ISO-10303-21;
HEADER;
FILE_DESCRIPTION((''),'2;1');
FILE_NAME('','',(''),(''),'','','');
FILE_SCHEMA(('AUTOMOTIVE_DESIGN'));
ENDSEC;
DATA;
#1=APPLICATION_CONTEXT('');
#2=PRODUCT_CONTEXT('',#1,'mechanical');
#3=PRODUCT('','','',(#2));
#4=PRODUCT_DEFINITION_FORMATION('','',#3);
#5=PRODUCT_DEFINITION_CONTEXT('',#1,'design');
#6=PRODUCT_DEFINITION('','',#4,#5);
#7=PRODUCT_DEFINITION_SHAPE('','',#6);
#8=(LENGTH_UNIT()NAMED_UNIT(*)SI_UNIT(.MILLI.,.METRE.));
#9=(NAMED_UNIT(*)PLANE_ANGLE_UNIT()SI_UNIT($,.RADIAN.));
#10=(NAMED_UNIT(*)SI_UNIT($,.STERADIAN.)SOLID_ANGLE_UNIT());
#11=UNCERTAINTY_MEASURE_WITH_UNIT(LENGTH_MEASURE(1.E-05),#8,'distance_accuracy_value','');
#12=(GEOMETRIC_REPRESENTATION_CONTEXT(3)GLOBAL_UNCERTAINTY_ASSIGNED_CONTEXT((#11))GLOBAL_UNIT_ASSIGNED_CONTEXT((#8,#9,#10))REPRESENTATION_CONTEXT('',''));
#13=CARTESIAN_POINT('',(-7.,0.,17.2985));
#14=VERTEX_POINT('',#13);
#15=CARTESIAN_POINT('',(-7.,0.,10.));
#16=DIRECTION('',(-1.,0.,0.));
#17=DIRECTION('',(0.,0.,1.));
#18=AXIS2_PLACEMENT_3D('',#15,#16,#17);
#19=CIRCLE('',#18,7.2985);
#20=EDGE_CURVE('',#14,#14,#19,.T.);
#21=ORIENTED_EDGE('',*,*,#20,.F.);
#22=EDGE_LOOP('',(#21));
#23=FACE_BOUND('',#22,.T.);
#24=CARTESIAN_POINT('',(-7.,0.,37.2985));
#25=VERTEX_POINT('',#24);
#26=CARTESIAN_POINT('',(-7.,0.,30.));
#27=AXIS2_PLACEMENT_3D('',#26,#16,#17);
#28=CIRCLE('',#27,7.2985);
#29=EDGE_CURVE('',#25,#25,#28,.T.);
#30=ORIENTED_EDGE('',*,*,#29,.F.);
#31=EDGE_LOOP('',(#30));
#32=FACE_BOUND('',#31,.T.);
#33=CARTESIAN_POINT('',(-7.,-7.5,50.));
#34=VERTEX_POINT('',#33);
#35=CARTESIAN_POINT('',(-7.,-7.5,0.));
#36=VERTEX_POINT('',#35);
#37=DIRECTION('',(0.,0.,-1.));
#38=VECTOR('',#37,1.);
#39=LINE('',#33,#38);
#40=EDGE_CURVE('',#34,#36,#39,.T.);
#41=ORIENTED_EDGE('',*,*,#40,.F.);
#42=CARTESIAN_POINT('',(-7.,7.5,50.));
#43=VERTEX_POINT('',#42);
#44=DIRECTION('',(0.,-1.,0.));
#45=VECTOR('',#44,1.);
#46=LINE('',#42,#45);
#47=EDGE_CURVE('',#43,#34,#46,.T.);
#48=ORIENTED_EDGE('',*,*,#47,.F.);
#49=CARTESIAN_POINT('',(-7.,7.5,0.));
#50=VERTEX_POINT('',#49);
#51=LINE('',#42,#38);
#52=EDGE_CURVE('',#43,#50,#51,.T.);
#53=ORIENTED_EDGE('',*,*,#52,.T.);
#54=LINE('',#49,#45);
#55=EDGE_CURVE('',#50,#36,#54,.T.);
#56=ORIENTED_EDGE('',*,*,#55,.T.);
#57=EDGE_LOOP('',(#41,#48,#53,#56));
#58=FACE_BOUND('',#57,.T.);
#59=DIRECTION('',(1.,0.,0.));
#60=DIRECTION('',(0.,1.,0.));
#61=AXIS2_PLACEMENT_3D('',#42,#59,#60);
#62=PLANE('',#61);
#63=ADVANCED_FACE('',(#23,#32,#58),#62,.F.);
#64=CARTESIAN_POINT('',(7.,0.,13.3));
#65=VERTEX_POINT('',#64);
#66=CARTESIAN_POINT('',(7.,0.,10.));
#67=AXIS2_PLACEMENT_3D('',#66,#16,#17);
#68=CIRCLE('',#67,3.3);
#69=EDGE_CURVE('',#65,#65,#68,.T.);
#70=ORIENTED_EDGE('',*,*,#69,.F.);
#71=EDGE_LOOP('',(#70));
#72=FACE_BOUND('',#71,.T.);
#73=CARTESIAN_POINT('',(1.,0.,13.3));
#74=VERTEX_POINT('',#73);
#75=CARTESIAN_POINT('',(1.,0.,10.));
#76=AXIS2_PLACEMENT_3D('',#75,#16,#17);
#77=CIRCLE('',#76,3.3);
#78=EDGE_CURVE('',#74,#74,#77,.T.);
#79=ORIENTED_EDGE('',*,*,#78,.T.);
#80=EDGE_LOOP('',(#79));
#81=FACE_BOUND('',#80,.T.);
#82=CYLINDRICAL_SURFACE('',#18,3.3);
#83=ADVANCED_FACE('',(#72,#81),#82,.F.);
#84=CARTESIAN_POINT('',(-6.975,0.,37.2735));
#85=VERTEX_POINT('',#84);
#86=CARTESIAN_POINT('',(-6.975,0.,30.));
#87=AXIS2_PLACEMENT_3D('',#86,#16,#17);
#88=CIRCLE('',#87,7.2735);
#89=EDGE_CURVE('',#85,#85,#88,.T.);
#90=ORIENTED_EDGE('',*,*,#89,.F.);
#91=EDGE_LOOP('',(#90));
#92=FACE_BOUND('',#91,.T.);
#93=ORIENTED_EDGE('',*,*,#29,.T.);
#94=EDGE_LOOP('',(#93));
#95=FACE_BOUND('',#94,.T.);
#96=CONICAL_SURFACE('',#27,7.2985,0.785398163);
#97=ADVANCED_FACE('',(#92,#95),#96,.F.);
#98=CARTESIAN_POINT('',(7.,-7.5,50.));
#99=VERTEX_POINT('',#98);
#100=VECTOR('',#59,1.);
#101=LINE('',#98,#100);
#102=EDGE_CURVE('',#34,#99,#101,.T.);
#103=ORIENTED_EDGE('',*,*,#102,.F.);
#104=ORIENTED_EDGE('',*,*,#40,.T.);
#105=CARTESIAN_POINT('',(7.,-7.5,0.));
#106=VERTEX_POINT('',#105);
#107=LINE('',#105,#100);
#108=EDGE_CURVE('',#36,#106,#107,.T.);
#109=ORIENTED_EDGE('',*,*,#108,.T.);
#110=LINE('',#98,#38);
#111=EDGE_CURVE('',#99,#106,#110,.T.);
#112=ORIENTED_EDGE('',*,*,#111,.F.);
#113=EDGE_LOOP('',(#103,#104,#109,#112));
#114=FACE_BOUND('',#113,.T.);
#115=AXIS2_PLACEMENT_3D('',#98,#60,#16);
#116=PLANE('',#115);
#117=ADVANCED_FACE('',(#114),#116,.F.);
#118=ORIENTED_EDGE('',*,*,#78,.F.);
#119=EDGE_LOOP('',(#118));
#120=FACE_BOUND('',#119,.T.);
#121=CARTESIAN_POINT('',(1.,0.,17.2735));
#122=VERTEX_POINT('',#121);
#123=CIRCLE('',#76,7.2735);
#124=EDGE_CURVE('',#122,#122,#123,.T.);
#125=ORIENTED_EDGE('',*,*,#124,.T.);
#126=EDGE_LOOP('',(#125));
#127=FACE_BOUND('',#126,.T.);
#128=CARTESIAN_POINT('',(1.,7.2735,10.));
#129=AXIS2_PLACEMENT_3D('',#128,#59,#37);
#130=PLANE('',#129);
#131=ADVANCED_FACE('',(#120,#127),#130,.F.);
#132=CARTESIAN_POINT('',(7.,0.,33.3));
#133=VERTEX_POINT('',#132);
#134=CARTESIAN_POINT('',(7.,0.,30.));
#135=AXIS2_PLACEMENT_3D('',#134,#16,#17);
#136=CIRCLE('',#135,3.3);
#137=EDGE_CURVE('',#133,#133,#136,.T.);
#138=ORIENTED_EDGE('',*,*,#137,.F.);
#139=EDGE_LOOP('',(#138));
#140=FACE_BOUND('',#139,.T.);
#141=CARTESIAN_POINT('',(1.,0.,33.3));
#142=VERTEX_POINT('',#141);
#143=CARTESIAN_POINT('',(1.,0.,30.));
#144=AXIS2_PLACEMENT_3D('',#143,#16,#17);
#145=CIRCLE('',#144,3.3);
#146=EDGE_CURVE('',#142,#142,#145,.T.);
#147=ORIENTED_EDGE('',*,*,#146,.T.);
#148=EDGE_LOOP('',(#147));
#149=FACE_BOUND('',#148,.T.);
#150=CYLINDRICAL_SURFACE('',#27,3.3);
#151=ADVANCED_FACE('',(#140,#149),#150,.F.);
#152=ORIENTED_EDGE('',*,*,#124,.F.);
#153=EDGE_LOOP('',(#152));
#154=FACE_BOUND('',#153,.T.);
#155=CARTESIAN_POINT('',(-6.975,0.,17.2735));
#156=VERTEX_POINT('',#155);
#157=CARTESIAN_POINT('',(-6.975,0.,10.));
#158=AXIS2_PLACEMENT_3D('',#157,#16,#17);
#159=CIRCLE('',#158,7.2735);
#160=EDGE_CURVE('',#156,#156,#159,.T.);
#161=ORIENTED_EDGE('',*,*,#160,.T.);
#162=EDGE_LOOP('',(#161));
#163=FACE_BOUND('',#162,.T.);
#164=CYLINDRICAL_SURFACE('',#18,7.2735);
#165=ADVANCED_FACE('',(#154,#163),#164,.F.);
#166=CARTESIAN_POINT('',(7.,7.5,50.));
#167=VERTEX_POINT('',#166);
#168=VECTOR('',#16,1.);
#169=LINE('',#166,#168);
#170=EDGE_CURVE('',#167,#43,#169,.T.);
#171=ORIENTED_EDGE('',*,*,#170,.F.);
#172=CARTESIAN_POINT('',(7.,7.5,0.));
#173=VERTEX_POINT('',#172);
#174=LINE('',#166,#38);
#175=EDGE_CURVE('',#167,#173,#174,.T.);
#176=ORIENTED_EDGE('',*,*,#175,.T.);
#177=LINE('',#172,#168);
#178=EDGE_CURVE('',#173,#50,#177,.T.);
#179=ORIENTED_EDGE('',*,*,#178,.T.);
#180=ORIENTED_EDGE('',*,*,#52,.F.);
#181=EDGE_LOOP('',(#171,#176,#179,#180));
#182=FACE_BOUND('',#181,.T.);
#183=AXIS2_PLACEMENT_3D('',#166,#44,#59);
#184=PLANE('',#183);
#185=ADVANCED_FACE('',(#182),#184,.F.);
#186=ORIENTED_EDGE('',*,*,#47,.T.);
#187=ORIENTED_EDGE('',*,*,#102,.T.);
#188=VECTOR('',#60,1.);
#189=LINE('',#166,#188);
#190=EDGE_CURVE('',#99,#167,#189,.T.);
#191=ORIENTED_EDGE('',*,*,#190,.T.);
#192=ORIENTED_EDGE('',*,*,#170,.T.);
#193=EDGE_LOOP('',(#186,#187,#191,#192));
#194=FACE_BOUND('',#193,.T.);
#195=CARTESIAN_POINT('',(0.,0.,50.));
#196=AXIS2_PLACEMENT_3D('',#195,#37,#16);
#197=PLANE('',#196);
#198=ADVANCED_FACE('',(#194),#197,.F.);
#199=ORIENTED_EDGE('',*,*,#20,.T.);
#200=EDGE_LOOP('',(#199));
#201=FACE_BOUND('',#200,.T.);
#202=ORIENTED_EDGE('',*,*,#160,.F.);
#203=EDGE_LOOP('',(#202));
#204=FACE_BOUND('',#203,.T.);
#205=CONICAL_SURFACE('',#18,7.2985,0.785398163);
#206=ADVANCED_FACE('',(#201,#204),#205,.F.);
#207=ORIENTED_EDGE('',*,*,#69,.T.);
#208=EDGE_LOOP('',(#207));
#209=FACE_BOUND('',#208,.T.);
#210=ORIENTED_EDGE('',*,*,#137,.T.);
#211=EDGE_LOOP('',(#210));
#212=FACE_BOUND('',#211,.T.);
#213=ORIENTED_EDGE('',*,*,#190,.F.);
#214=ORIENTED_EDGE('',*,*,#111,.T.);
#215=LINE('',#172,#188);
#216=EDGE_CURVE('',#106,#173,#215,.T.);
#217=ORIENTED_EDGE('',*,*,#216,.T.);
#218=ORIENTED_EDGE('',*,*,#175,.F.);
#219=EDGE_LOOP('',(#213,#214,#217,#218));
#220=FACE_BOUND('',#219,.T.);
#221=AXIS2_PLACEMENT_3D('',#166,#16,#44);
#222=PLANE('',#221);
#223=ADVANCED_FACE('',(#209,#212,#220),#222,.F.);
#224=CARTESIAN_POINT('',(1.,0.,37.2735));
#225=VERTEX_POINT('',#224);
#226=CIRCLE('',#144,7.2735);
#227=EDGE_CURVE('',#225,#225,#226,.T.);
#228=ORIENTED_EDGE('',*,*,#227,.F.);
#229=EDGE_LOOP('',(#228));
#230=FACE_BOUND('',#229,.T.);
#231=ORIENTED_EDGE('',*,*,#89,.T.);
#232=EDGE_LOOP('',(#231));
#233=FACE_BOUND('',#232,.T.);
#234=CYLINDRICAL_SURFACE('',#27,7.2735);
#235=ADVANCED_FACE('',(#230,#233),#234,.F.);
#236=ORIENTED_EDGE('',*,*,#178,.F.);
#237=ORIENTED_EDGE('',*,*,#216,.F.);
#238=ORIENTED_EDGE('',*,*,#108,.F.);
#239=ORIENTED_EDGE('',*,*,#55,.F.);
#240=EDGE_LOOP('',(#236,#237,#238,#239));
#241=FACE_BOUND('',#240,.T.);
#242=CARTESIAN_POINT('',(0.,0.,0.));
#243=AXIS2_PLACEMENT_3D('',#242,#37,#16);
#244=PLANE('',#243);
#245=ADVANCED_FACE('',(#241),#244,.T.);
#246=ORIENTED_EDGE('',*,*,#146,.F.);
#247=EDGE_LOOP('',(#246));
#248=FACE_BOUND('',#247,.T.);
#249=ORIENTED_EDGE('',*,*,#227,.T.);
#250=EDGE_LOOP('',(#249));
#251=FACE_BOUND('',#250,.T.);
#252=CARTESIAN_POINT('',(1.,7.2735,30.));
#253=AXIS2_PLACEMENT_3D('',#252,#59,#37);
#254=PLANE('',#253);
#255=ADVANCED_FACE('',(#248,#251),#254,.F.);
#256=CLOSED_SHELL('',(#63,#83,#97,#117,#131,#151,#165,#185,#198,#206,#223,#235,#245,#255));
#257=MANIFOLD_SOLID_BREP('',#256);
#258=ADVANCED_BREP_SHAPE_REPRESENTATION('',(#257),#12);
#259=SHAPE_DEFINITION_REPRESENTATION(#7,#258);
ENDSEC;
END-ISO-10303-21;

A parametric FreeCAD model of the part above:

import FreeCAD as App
import Part
import Sketcher
Q = App.Units.Quantity


def add_polygon(sketch, points):
    """Adds a closed chain of lines whose ends are joined by coincident constraints."""
    first, n = sketch.GeometryCount, len(points)
    for a, b in zip(points, points[1:] + points[:1]):
        sketch.addGeometry(Part.LineSegment(App.Vector(*a, 0), App.Vector(*b, 0)), False)
    for i in range(n):
        sketch.addConstraint(Sketcher.Constraint("Coincident", first + i, 2, first + (i + 1) % n, 1))

doc = App.newDocument("Part")
body = doc.addObject("PartDesign::Body", "Body")

# Sketch on XY plane
sketch1 = body.newObject("Sketcher::SketchObject", "Sketch")
sketch1.AttachmentSupport = (doc.getObject("XY_Plane"), [""])
sketch1.MapMode = "FlatFace"
add_polygon(sketch1, [(-7, 8), (-7, -8), (7, -8), (7, 8)])  # lines 0-3
sketch1.addConstraint([
    Sketcher.Constraint("Vertical", 0),
    Sketcher.Constraint("Horizontal", 1),
    Sketcher.Constraint("Vertical", 2),
    Sketcher.Constraint("Horizontal", 3),
    Sketcher.Constraint("Symmetric", 0, 2, 2, 2, -1, 1),
    Sketcher.Constraint("DistanceX", 1, 1, 1, 2, Q("14 mm")),
    Sketcher.Constraint("DistanceY", 0, 2, 0, 1, Q("15 mm")),
])
pad1 = body.newObject("PartDesign::Pad", "Pad")
pad1.Profile = sketch1
pad1.Length = 50

# Sketch on XZ plane
sketch2 = body.newObject("Sketcher::SketchObject", "Sketch001")
sketch2.AttachmentSupport = (doc.getObject("XZ_Plane"), [""])
sketch2.MapMode = "FlatFace"
add_polygon(sketch2, [(7, 10), (-7, 10), (-7, 17.299), (-6.975, 17.273), (1, 17.273), (1, 13.3), (7, 13.3)])  # lines 0-6
sketch2.addGeometry(Part.LineSegment(App.Vector(-7, 10, 0), App.Vector(7, 10, 0)), True)  # axis
sketch2.addConstraint([
    Sketcher.Constraint("Horizontal", 0),
    Sketcher.Constraint("Vertical", 1),
    Sketcher.Constraint("Horizontal", 3),
    Sketcher.Constraint("Vertical", 4),
    Sketcher.Constraint("Horizontal", 5),
    Sketcher.Constraint("Vertical", 6),
    Sketcher.Constraint("Horizontal", 7),
    Sketcher.Constraint("Coincident", 7, 1, 0, 2),
    Sketcher.Constraint("Vertical", 5, 2, 7, 2),
    Sketcher.Constraint("DistanceX", 0, 2, 0, 1, Q("14 mm")),
    Sketcher.Constraint("DistanceX", 5, 1, 5, 2, Q("6 mm")),
    Sketcher.Constraint("Angle", 2, Q("-45 deg")),
    Sketcher.Constraint("DistanceY", 6, 2, 6, 1, Q("3.3 mm")),
    Sketcher.Constraint("DistanceX", 0, 2, -1, 1, Q("7 mm")),
    Sketcher.Constraint("DistanceY", -1, 1, 0, 2, Q("10 mm")),
    Sketcher.Constraint("DistanceX", 3, 1, 3, 2, Q("7.975 mm")),
    Sketcher.Constraint("DistanceY", 1, 1, 1, 2, Q("7.2985 mm")),
])
groove = body.newObject("PartDesign::Groove", "Groove")
groove.Profile = sketch2
groove.ReferenceAxis = (sketch2, ["Axis0"])
groove.Angle = 360
doc.recompute()

linearpattern = body.newObject("PartDesign::LinearPattern", "LinearPattern")
linearpattern.Originals = [groove]
linearpattern.Direction = (doc.getObject("Z_Axis"), [""])
linearpattern.Mode = "offset"
linearpattern.Offset = 20
linearpattern.Occurrences = 2
body.Tip = linearpattern

doc.recompute()
